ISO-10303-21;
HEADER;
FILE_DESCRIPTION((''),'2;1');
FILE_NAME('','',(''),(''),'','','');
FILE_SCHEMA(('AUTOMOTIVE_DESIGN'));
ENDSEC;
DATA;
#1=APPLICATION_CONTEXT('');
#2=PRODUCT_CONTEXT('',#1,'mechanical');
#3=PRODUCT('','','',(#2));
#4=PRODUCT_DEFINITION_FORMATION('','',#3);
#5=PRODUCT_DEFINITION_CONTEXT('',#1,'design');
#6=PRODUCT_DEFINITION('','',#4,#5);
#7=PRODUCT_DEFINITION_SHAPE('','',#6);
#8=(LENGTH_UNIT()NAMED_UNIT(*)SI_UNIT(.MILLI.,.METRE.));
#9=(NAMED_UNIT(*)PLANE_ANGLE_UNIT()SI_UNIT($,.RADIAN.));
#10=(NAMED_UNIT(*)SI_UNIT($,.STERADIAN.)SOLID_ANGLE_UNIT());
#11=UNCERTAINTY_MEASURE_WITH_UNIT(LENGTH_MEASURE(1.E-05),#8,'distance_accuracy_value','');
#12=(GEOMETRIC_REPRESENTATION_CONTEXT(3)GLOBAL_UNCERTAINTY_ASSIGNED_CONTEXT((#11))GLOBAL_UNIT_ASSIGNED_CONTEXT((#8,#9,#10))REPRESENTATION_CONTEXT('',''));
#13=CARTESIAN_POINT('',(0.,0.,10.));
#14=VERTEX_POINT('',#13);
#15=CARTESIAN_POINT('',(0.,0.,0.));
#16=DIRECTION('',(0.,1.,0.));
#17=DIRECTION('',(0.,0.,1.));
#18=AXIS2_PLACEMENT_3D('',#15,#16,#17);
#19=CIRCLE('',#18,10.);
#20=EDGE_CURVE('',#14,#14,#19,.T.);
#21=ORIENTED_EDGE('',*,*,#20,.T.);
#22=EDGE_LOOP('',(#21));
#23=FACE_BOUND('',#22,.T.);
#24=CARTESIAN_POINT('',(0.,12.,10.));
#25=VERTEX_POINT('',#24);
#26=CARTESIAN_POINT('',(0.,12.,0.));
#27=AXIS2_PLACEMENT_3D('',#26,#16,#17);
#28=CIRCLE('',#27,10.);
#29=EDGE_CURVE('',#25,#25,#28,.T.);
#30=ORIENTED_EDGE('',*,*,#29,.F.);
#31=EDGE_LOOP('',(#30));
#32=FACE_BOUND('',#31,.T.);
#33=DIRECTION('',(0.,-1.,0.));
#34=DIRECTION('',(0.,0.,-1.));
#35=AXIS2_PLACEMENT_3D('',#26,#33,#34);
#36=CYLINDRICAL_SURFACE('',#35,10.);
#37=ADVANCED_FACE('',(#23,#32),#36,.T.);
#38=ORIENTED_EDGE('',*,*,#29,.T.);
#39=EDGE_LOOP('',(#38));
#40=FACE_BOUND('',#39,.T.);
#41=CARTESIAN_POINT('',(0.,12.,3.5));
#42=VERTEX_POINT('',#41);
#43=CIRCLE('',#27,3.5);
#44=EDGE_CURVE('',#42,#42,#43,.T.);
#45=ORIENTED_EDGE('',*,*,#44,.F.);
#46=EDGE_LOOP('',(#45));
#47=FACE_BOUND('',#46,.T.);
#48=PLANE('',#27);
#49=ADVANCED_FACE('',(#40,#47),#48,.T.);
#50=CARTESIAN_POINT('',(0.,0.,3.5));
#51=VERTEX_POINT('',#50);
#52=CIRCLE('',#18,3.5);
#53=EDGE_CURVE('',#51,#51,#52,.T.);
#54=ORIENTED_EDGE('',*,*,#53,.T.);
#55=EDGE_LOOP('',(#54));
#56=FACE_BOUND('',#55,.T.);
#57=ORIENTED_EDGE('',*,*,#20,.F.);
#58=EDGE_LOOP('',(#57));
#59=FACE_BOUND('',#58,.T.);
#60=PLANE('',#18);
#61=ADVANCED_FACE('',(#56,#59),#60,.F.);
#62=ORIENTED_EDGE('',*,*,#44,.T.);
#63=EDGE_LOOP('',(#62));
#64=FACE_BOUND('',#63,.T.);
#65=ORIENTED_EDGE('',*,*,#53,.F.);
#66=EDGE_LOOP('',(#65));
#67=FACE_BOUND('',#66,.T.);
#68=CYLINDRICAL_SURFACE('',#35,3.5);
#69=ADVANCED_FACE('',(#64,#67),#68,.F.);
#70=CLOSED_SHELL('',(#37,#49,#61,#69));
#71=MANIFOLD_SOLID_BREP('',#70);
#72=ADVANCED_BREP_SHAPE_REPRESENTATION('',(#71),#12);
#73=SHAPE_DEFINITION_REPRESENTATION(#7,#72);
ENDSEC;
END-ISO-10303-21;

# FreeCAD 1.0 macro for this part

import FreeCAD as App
import Part
import Sketcher
from FreeCAD import Vector

doc = App.newDocument("Part")
body = doc.addObject("PartDesign::Body", "Body")

# Sketch on XZ plane
sketch1 = body.newObject("Sketcher::SketchObject", "Sketch")
sketch1.AttachmentSupport = (doc.getObject("XZ_Plane"), [""])
sketch1.MapMode = "FlatFace"
sketch1.addGeometry([
    Part.Circle(Vector(0, 0, 0), Vector(0, 0, 1), 10),
    Part.Circle(Vector(0, 0, 0), Vector(0, 0, 1), 3.5),
], False)
sketch1.addConstraint([
    Sketcher.Constraint("Coincident", 0, 3, -1, 1),
    Sketcher.Constraint("Coincident", 1, 3, -1, 1),
    Sketcher.Constraint("Diameter", 0, 20.0),
    Sketcher.Constraint("Diameter", 1, 7.0),
])
pad1 = body.newObject("PartDesign::Pad", "Pad")
pad1.Profile = sketch1
pad1.Length = 12
pad1.Reversed = True

doc.recompute()
